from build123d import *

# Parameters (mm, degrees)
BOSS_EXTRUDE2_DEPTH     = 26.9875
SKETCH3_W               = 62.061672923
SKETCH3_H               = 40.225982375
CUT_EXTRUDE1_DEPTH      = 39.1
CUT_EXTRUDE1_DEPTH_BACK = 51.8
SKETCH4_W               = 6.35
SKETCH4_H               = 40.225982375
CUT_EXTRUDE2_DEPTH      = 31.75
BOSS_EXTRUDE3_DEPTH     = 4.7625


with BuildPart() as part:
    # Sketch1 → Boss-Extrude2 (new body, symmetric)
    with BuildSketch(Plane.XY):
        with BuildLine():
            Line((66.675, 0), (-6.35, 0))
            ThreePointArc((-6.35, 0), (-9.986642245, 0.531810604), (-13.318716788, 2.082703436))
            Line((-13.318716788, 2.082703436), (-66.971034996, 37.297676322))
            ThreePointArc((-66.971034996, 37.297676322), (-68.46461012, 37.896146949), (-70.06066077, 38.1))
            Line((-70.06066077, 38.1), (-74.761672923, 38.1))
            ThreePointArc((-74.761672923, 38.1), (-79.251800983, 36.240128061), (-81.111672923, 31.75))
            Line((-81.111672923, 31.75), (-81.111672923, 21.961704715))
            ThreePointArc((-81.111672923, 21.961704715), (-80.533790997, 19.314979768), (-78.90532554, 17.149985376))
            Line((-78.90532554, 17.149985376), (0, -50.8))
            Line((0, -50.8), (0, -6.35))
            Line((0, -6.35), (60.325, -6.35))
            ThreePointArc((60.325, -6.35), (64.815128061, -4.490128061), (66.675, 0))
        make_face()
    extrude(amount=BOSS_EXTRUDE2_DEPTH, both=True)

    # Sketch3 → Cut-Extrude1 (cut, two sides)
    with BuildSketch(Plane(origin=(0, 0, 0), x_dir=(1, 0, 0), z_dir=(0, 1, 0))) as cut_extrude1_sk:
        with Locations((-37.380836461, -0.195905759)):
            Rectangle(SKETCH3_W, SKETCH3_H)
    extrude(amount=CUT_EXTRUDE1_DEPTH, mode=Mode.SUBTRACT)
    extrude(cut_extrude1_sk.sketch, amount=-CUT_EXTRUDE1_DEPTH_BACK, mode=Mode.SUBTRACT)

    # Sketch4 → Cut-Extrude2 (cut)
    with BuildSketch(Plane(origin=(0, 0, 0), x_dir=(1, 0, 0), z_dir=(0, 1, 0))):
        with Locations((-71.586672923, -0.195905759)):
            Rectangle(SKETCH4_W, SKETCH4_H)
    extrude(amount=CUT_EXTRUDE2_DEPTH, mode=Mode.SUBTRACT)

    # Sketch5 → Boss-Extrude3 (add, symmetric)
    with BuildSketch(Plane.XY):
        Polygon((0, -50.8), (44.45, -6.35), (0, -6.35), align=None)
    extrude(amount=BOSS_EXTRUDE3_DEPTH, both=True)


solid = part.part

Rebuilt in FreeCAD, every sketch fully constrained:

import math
import FreeCAD as App
import Part
import Sketcher
from FreeCAD import Vector
Q = App.Units.Quantity


def add_polygon(sketch, points):
    """Adds a closed chain of lines whose ends are joined by coincident constraints."""
    first, n = sketch.GeometryCount, len(points)
    for a, b in zip(points, points[1:] + points[:1]):
        sketch.addGeometry(Part.LineSegment(App.Vector(*a, 0), App.Vector(*b, 0)), False)
    for i in range(n):
        sketch.addConstraint(Sketcher.Constraint("Coincident", first + i, 2, first + (i + 1) % n, 1))

doc = App.newDocument("Part")
body = doc.addObject("PartDesign::Body", "Body")

# Sketch on XY plane
sketch1 = body.newObject("Sketcher::SketchObject", "Sketch")
sketch1.AttachmentSupport = (doc.getObject("XY_Plane"), [""])
sketch1.MapMode = "FlatFace"
sketch1.addGeometry([
    Part.LineSegment(Vector(66.675, 0, 0), Vector(-6.35, 0, 0)),  # 0
    Part.ArcOfCircle(Part.Circle(Vector(-6.35, 12.7, 0), Vector(0, 0, 1), 12.7), math.radians(-123.279097), math.radians(-90)),  # 1
    Part.LineSegment(Vector(-13.318717, 2.082703, 0), Vector(-66.971035, 37.297676, 0)),  # 2
    Part.ArcOfCircle(Part.Circle(Vector(-70.060661, 31.75, 0), Vector(0, 0, 1), 6.35), math.radians(60.885582), math.radians(90)),  # 3
    Part.LineSegment(Vector(-70.060661, 38.1, 0), Vector(-74.761673, 38.1, 0)),  # 4
    Part.ArcOfCircle(Part.Circle(Vector(-74.761673, 31.75, 0), Vector(0, 0, 1), 6.35), math.radians(90), math.radians(180)),  # 5
    Part.LineSegment(Vector(-81.111673, 31.75, 0), Vector(-81.111673, 21.961705, 0)),  # 6
    Part.ArcOfCircle(Part.Circle(Vector(-74.761673, 21.961705, 0), Vector(0, 0, 1), 6.35), math.radians(180), math.radians(229.266337)),  # 7
    Part.LineSegment(Vector(-78.905326, 17.149985, 0), Vector(0, -50.8, 0)),  # 8
    Part.LineSegment(Vector(0, -50.8, 0), Vector(0, -6.35, 0)),  # 9
    Part.LineSegment(Vector(0, -6.35, 0), Vector(60.325, -6.35, 0)),  # 10
    Part.ArcOfCircle(Part.Circle(Vector(60.325, 0, 0), Vector(0, 0, 1), 6.35), math.radians(-90), math.radians(0)),  # 11
], False)
sketch1.addConstraint([
    Sketcher.Constraint("Tangent", 0, 2, 1, 2),
    Sketcher.Constraint("Tangent", 1, 1, 2, 1),
    Sketcher.Constraint("Coincident", 2, 2, 3, 1),
    Sketcher.Constraint("Tangent", 3, 2, 4, 1),
    Sketcher.Constraint("Tangent", 4, 2, 5, 1),
    Sketcher.Constraint("Tangent", 5, 2, 6, 1),
    Sketcher.Constraint("Tangent", 6, 2, 7, 1),
    Sketcher.Constraint("Tangent", 7, 2, 8, 1),
    Sketcher.Constraint("Coincident", 8, 2, 9, 1),
    Sketcher.Constraint("Coincident", 9, 2, 10, 1),
    Sketcher.Constraint("Tangent", 10, 2, 11, 1),
    Sketcher.Constraint("Coincident", 11, 2, 0, 1),
    Sketcher.Constraint("Horizontal", 0),
    Sketcher.Constraint("Horizontal", 4),
    Sketcher.Constraint("Vertical", 6),
    Sketcher.Constraint("Vertical", 9),
    Sketcher.Constraint("Horizontal", 10),
    Sketcher.Constraint("Equal", 3, 5),
    Sketcher.Constraint("Equal", 5, 7),
    Sketcher.Constraint("Equal", 7, 11),
    Sketcher.Constraint("PointOnObject", 11, 3, -1),
    Sketcher.Constraint("PointOnObject", 0, 2, -1),
    Sketcher.Constraint("PointOnObject", 8, 2, -2),
    Sketcher.Constraint("Radius", 1, Q("0.5 in")),
    Sketcher.Constraint("Radius", 3, Q("0.25 in")),
    Sketcher.Constraint("DistanceY", 8, 2, -1, 1, Q("2 in")),
    Sketcher.Constraint("DistanceY", -1, 1, 3, 2, Q("1.5 in")),
    Sketcher.Constraint("DistanceX", 0, 2, 0, 1, Q("2.875 in")),
    Sketcher.Constraint("DistanceX", 10, 1, 10, 2, Q("2.375 in")),
    Sketcher.Constraint("DistanceY", 1, 1, 7, 3, Q("19.879001 mm")),
    Sketcher.Constraint("Distance", 2, Q("64.17683 mm")),
    Sketcher.Constraint("Distance", 8, Q("104.130932 mm")),
    Sketcher.Constraint("DistanceX", 4, 2, 4, 1, Q("4.701012 mm")),
])
pad1 = body.newObject("PartDesign::Pad", "Pad")
pad1.Profile = sketch1
pad1.Length = Q("2.125 in")
pad1.Midplane = True

# Sketch on XZ plane
sketch2 = body.newObject("Sketcher::SketchObject", "Sketch001")
sketch2.AttachmentSupport = (doc.getObject("XZ_Plane"), [""])
sketch2.MapMode = "FlatFace"
add_polygon(sketch2, [(-68.411673, -19.917085), (-68.411673, 20.308897), (-6.35, 20.308897), (-6.35, -19.917085)])  # lines 0-3
sketch2.addConstraint([
    Sketcher.Constraint("Vertical", 0),
    Sketcher.Constraint("Horizontal", 1),
    Sketcher.Constraint("Vertical", 2),
    Sketcher.Constraint("Horizontal", 3),
    Sketcher.Constraint("DistanceX", 1, 2, -1, 1, Q("0.25 in")),
    Sketcher.Constraint("DistanceY", 0, 1, 0, 2, Q("1.5837001 in")),
    Sketcher.Constraint("DistanceX", 1, 1, 1, 2, Q("62.061673 mm")),
    Sketcher.Constraint("DistanceY", -1, 1, 0, 2, Q("20.308897 mm")),
])
pocket1 = body.newObject("PartDesign::Pocket", "Pocket")
pocket1.Profile = sketch2
pocket1.Type = "ThroughAll"
pocket1.Midplane = True

# Sketch on XZ plane
sketch3 = body.newObject("Sketcher::SketchObject", "Sketch002")
sketch3.AttachmentSupport = (doc.getObject("XZ_Plane"), [""])
sketch3.MapMode = "FlatFace"
add_polygon(sketch3, [(-74.761673, -19.917085), (-74.761673, 20.308897), (-68.411673, 20.308897), (-68.411673, -19.917085)])  # lines 0-3
sketch3.addConstraint([
    Sketcher.Constraint("Vertical", 0),
    Sketcher.Constraint("Horizontal", 1),
    Sketcher.Constraint("Vertical", 2),
    Sketcher.Constraint("Horizontal", 3),
    Sketcher.Constraint("DistanceX", 1, 1, 1, 2, Q("0.25 in")),
    Sketcher.Constraint("DistanceY", 0, 1, 0, 2, Q("1.5837001 in")),
    Sketcher.Constraint("DistanceX", 0, 2, -1, 1, Q("74.761673 mm")),
    Sketcher.Constraint("DistanceY", -1, 1, 0, 2, Q("20.308897 mm")),
])
pocket2 = body.newObject("PartDesign::Pocket", "Pocket001")
pocket2.Profile = sketch3
pocket2.Length = Q("1.25 in")

# Sketch on XY plane
sketch4 = body.newObject("Sketcher::SketchObject", "Sketch003")
sketch4.AttachmentSupport = (doc.getObject("XY_Plane"), [""])
sketch4.MapMode = "FlatFace"
add_polygon(sketch4, [(0, -50.8), (44.45, -6.35), (0, -6.35)])  # lines 0-2
sketch4.addConstraint([
    Sketcher.Constraint("Horizontal", 1),
    Sketcher.Constraint("Vertical", 2),
    Sketcher.Constraint("PointOnObject", 1, 2, -2),
    Sketcher.Constraint("Equal", 1, 2),
    Sketcher.Constraint("DistanceY", 2, 2, -1, 1, Q("2 in")),
    Sketcher.Constraint("DistanceX", 1, 2, 1, 1, Q("1.75 in")),
])
pad2 = body.newObject("PartDesign::Pad", "Pad001")
pad2.Profile = sketch4
pad2.Length = Q("0.375 in")
pad2.Midplane = True

doc.recompute()
